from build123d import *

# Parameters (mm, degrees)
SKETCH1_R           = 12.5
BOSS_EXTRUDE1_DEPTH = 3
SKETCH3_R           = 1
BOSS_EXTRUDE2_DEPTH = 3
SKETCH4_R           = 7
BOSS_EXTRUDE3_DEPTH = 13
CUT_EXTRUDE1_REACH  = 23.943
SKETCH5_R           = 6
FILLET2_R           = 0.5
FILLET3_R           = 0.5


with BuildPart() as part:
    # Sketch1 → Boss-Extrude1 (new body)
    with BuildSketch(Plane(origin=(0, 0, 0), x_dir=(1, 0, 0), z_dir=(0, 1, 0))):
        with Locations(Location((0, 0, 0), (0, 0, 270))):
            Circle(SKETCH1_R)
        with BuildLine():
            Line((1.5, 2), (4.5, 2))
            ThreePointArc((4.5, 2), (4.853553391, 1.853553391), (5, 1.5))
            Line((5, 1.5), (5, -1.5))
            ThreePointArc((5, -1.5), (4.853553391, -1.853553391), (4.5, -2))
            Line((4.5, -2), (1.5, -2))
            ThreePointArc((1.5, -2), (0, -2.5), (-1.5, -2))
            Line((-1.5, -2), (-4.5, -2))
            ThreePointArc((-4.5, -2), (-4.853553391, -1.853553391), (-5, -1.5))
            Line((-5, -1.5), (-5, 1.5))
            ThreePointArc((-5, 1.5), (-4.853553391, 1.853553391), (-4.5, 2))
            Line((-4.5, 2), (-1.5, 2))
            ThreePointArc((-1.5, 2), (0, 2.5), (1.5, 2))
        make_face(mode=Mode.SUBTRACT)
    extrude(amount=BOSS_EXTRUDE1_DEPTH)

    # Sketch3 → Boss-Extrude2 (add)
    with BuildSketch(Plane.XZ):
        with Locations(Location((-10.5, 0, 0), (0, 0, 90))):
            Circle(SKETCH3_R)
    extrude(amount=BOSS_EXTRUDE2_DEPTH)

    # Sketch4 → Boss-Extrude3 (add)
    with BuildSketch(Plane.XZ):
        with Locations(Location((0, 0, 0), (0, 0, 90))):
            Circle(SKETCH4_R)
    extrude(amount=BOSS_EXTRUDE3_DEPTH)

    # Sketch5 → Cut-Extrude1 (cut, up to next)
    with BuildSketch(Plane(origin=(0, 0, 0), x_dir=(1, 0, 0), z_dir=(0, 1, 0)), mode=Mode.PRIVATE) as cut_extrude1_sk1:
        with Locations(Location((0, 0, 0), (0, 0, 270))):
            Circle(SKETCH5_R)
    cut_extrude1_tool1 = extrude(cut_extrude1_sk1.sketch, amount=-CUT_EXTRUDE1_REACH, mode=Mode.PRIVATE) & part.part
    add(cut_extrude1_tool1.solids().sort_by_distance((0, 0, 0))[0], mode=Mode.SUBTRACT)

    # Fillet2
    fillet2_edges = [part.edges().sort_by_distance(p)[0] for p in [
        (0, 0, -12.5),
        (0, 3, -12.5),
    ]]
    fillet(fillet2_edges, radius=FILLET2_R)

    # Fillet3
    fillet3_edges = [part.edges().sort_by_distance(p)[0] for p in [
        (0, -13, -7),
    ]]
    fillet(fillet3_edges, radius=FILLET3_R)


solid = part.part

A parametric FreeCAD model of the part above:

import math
import FreeCAD as App
import Part
import Sketcher
Q = App.Units.Quantity


def edges_at(feature, points):
    """Names of the edges that pass closest to the given points."""
    edges = feature.Shape.Edges
    near = lambda p: min(range(len(edges)), key=lambda i: edges[i].distToShape(Part.Vertex(*p))[0])
    return sorted({f"Edge{near(p) + 1}" for p in points})

doc = App.newDocument("Part")
body = doc.addObject("PartDesign::Body", "Body")

# Sketch on XZ plane
sketch1 = body.newObject("Sketcher::SketchObject", "Sketch")
sketch1.AttachmentSupport = (doc.getObject("XZ_Plane"), [""])
sketch1.MapMode = "FlatFace"
sketch1.addGeometry([
    Part.Circle(App.Vector(0, 0, 0), App.Vector(0, 0, 1), 12.5),  # 0
    Part.ArcOfCircle(Part.Circle(App.Vector(0, 0, 0), App.Vector(0, 0, 1), 2.5), math.radians(-127), math.radians(-53)),  # 1
    Part.LineSegment(App.Vector(1.5, -2, 0), App.Vector(4.5, -2, 0)),  # 2
    Part.ArcOfCircle(Part.Circle(App.Vector(4.5, -1.5, 0), App.Vector(0, 0, 1), 0.5), math.radians(-90), math.radians(0)),  # 3
    Part.LineSegment(App.Vector(5, -1.5, 0), App.Vector(5, 1.5, 0)),  # 4
    Part.ArcOfCircle(Part.Circle(App.Vector(4.5, 1.5, 0), App.Vector(0, 0, 1), 0.5), math.radians(0), math.radians(90)),  # 5
    Part.LineSegment(App.Vector(4.5, 2, 0), App.Vector(1.5, 2, 0)),  # 6
    Part.ArcOfCircle(Part.Circle(App.Vector(0, 0, 0), App.Vector(0, 0, 1), 2.5), math.radians(53), math.radians(127)),  # 7
    Part.LineSegment(App.Vector(-1.5, 2, 0), App.Vector(-4.5, 2, 0)),  # 8
    Part.ArcOfCircle(Part.Circle(App.Vector(-4.5, 1.5, 0), App.Vector(0, 0, 1), 0.5), math.radians(90), math.radians(180)),  # 9
    Part.LineSegment(App.Vector(-5, 1.5, 0), App.Vector(-5, -1.5, 0)),  # 10
    Part.ArcOfCircle(Part.Circle(App.Vector(-4.5, -1.5, 0), App.Vector(0, 0, 1), 0.5), math.radians(180), math.radians(270)),  # 11
    Part.LineSegment(App.Vector(-4.5, -2, 0), App.Vector(-1.5, -2, 0)),  # 12
], False)
sketch1.addConstraint([
    Sketcher.Constraint("Coincident", 1, 2, 2, 1),
    Sketcher.Constraint("Tangent", 2, 2, 3, 1),
    Sketcher.Constraint("Tangent", 3, 2, 4, 1),
    Sketcher.Constraint("Tangent", 4, 2, 5, 1),
    Sketcher.Constraint("Tangent", 5, 2, 6, 1),
    Sketcher.Constraint("Coincident", 6, 2, 7, 1),
    Sketcher.Constraint("Coincident", 7, 2, 8, 1),
    Sketcher.Constraint("Tangent", 8, 2, 9, 1),
    Sketcher.Constraint("Tangent", 9, 2, 10, 1),
    Sketcher.Constraint("Tangent", 10, 2, 11, 1),
    Sketcher.Constraint("Tangent", 11, 2, 12, 1),
    Sketcher.Constraint("Coincident", 12, 2, 1, 1),
    Sketcher.Constraint("Horizontal", 2),
    Sketcher.Constraint("Vertical", 4),
    Sketcher.Constraint("Horizontal", 6),
    Sketcher.Constraint("Horizontal", 8),
    Sketcher.Constraint("Vertical", 10),
    Sketcher.Constraint("Horizontal", 12),
    Sketcher.Constraint("Coincident", 0, 3, -1, 1),
    Sketcher.Constraint("Coincident", 1, 3, -1, 1),
    Sketcher.Constraint("Coincident", 7, 3, -1, 1),
    Sketcher.Constraint("Equal", 3, 5),
    Sketcher.Constraint("Equal", 1, 7),
    Sketcher.Constraint("Equal", 5, 9),
    Sketcher.Constraint("Equal", 9, 11),
    Sketcher.Constraint("Symmetric", 3, 3, 9, 3, -1, 1),
    Sketcher.Constraint("Horizontal", 5, 3, 9, 3),
    Sketcher.Constraint("Horizontal", 3, 3, 11, 3),
    Sketcher.Constraint("Equal", 12, 4),
    Sketcher.Constraint("Diameter", 0, Q("25 mm")),
    Sketcher.Constraint("Radius", 1, Q("2.5 mm")),
    Sketcher.Constraint("Radius", 3, Q("0.5 mm")),
    Sketcher.Constraint("DistanceX", 2, 1, 2, 2, Q("3 mm")),
])
pad1 = body.newObject("PartDesign::Pad", "Pad")
pad1.Profile = sketch1
pad1.Length = 3
pad1.Reversed = True

# Sketch on XZ plane
sketch2 = body.newObject("Sketcher::SketchObject", "Sketch001")
sketch2.AttachmentSupport = (doc.getObject("XZ_Plane"), [""])
sketch2.MapMode = "FlatFace"
sketch2.addGeometry(Part.Circle(App.Vector(-10.5, 0, 0), App.Vector(0, 0, 1), 1), False)
sketch2.addConstraint([
    Sketcher.Constraint("PointOnObject", 0, 3, -1),
    Sketcher.Constraint("Diameter", 0, Q("2 mm")),
    Sketcher.Constraint("DistanceX", 0, 3, -1, 1, Q("10.5 mm")),
])
pad2 = body.newObject("PartDesign::Pad", "Pad001")
pad2.Profile = sketch2
pad2.Length = 3

# Sketch on XZ plane
sketch3 = body.newObject("Sketcher::SketchObject", "Sketch002")
sketch3.AttachmentSupport = (doc.getObject("XZ_Plane"), [""])
sketch3.MapMode = "FlatFace"
sketch3.addGeometry(Part.Circle(App.Vector(0, 0, 0), App.Vector(0, 0, 1), 7), False)
sketch3.addConstraint([
    Sketcher.Constraint("Coincident", 0, 3, -1, 1),
    Sketcher.Constraint("Diameter", 0, Q("14 mm")),
])
pad3 = body.newObject("PartDesign::Pad", "Pad002")
pad3.Profile = sketch3
pad3.Length = 13

# Sketch on XZ plane
sketch4 = body.newObject("Sketcher::SketchObject", "Sketch003")
sketch4.AttachmentSupport = (doc.getObject("XZ_Plane"), [""])
sketch4.MapMode = "FlatFace"
sketch4.addGeometry(Part.Circle(App.Vector(0, 0, 0), App.Vector(0, 0, 1), 6), False)
sketch4.addConstraint([
    Sketcher.Constraint("Coincident", 0, 3, -1, 1),
    Sketcher.Constraint("Diameter", 0, Q("12 mm")),
])
pocket1 = body.newObject("PartDesign::Pocket", "Pocket")
pocket1.Profile = sketch4
pocket1.Type = "UpToFirst"
pocket1.Reversed = True
doc.recompute()

fillet = body.newObject("PartDesign::Fillet", "Fillet")
fillet.Base = (pocket1, edges_at(pocket1, [(0, 0, -12.5), (0, 3, -12.5)]))
fillet.Radius = 0.5
doc.recompute()

fillet2 = body.newObject("PartDesign::Fillet", "Fillet001")
fillet2.Base = (fillet, edges_at(fillet, [(0, -13, -7)]))
fillet2.Radius = 0.5

doc.recompute()
